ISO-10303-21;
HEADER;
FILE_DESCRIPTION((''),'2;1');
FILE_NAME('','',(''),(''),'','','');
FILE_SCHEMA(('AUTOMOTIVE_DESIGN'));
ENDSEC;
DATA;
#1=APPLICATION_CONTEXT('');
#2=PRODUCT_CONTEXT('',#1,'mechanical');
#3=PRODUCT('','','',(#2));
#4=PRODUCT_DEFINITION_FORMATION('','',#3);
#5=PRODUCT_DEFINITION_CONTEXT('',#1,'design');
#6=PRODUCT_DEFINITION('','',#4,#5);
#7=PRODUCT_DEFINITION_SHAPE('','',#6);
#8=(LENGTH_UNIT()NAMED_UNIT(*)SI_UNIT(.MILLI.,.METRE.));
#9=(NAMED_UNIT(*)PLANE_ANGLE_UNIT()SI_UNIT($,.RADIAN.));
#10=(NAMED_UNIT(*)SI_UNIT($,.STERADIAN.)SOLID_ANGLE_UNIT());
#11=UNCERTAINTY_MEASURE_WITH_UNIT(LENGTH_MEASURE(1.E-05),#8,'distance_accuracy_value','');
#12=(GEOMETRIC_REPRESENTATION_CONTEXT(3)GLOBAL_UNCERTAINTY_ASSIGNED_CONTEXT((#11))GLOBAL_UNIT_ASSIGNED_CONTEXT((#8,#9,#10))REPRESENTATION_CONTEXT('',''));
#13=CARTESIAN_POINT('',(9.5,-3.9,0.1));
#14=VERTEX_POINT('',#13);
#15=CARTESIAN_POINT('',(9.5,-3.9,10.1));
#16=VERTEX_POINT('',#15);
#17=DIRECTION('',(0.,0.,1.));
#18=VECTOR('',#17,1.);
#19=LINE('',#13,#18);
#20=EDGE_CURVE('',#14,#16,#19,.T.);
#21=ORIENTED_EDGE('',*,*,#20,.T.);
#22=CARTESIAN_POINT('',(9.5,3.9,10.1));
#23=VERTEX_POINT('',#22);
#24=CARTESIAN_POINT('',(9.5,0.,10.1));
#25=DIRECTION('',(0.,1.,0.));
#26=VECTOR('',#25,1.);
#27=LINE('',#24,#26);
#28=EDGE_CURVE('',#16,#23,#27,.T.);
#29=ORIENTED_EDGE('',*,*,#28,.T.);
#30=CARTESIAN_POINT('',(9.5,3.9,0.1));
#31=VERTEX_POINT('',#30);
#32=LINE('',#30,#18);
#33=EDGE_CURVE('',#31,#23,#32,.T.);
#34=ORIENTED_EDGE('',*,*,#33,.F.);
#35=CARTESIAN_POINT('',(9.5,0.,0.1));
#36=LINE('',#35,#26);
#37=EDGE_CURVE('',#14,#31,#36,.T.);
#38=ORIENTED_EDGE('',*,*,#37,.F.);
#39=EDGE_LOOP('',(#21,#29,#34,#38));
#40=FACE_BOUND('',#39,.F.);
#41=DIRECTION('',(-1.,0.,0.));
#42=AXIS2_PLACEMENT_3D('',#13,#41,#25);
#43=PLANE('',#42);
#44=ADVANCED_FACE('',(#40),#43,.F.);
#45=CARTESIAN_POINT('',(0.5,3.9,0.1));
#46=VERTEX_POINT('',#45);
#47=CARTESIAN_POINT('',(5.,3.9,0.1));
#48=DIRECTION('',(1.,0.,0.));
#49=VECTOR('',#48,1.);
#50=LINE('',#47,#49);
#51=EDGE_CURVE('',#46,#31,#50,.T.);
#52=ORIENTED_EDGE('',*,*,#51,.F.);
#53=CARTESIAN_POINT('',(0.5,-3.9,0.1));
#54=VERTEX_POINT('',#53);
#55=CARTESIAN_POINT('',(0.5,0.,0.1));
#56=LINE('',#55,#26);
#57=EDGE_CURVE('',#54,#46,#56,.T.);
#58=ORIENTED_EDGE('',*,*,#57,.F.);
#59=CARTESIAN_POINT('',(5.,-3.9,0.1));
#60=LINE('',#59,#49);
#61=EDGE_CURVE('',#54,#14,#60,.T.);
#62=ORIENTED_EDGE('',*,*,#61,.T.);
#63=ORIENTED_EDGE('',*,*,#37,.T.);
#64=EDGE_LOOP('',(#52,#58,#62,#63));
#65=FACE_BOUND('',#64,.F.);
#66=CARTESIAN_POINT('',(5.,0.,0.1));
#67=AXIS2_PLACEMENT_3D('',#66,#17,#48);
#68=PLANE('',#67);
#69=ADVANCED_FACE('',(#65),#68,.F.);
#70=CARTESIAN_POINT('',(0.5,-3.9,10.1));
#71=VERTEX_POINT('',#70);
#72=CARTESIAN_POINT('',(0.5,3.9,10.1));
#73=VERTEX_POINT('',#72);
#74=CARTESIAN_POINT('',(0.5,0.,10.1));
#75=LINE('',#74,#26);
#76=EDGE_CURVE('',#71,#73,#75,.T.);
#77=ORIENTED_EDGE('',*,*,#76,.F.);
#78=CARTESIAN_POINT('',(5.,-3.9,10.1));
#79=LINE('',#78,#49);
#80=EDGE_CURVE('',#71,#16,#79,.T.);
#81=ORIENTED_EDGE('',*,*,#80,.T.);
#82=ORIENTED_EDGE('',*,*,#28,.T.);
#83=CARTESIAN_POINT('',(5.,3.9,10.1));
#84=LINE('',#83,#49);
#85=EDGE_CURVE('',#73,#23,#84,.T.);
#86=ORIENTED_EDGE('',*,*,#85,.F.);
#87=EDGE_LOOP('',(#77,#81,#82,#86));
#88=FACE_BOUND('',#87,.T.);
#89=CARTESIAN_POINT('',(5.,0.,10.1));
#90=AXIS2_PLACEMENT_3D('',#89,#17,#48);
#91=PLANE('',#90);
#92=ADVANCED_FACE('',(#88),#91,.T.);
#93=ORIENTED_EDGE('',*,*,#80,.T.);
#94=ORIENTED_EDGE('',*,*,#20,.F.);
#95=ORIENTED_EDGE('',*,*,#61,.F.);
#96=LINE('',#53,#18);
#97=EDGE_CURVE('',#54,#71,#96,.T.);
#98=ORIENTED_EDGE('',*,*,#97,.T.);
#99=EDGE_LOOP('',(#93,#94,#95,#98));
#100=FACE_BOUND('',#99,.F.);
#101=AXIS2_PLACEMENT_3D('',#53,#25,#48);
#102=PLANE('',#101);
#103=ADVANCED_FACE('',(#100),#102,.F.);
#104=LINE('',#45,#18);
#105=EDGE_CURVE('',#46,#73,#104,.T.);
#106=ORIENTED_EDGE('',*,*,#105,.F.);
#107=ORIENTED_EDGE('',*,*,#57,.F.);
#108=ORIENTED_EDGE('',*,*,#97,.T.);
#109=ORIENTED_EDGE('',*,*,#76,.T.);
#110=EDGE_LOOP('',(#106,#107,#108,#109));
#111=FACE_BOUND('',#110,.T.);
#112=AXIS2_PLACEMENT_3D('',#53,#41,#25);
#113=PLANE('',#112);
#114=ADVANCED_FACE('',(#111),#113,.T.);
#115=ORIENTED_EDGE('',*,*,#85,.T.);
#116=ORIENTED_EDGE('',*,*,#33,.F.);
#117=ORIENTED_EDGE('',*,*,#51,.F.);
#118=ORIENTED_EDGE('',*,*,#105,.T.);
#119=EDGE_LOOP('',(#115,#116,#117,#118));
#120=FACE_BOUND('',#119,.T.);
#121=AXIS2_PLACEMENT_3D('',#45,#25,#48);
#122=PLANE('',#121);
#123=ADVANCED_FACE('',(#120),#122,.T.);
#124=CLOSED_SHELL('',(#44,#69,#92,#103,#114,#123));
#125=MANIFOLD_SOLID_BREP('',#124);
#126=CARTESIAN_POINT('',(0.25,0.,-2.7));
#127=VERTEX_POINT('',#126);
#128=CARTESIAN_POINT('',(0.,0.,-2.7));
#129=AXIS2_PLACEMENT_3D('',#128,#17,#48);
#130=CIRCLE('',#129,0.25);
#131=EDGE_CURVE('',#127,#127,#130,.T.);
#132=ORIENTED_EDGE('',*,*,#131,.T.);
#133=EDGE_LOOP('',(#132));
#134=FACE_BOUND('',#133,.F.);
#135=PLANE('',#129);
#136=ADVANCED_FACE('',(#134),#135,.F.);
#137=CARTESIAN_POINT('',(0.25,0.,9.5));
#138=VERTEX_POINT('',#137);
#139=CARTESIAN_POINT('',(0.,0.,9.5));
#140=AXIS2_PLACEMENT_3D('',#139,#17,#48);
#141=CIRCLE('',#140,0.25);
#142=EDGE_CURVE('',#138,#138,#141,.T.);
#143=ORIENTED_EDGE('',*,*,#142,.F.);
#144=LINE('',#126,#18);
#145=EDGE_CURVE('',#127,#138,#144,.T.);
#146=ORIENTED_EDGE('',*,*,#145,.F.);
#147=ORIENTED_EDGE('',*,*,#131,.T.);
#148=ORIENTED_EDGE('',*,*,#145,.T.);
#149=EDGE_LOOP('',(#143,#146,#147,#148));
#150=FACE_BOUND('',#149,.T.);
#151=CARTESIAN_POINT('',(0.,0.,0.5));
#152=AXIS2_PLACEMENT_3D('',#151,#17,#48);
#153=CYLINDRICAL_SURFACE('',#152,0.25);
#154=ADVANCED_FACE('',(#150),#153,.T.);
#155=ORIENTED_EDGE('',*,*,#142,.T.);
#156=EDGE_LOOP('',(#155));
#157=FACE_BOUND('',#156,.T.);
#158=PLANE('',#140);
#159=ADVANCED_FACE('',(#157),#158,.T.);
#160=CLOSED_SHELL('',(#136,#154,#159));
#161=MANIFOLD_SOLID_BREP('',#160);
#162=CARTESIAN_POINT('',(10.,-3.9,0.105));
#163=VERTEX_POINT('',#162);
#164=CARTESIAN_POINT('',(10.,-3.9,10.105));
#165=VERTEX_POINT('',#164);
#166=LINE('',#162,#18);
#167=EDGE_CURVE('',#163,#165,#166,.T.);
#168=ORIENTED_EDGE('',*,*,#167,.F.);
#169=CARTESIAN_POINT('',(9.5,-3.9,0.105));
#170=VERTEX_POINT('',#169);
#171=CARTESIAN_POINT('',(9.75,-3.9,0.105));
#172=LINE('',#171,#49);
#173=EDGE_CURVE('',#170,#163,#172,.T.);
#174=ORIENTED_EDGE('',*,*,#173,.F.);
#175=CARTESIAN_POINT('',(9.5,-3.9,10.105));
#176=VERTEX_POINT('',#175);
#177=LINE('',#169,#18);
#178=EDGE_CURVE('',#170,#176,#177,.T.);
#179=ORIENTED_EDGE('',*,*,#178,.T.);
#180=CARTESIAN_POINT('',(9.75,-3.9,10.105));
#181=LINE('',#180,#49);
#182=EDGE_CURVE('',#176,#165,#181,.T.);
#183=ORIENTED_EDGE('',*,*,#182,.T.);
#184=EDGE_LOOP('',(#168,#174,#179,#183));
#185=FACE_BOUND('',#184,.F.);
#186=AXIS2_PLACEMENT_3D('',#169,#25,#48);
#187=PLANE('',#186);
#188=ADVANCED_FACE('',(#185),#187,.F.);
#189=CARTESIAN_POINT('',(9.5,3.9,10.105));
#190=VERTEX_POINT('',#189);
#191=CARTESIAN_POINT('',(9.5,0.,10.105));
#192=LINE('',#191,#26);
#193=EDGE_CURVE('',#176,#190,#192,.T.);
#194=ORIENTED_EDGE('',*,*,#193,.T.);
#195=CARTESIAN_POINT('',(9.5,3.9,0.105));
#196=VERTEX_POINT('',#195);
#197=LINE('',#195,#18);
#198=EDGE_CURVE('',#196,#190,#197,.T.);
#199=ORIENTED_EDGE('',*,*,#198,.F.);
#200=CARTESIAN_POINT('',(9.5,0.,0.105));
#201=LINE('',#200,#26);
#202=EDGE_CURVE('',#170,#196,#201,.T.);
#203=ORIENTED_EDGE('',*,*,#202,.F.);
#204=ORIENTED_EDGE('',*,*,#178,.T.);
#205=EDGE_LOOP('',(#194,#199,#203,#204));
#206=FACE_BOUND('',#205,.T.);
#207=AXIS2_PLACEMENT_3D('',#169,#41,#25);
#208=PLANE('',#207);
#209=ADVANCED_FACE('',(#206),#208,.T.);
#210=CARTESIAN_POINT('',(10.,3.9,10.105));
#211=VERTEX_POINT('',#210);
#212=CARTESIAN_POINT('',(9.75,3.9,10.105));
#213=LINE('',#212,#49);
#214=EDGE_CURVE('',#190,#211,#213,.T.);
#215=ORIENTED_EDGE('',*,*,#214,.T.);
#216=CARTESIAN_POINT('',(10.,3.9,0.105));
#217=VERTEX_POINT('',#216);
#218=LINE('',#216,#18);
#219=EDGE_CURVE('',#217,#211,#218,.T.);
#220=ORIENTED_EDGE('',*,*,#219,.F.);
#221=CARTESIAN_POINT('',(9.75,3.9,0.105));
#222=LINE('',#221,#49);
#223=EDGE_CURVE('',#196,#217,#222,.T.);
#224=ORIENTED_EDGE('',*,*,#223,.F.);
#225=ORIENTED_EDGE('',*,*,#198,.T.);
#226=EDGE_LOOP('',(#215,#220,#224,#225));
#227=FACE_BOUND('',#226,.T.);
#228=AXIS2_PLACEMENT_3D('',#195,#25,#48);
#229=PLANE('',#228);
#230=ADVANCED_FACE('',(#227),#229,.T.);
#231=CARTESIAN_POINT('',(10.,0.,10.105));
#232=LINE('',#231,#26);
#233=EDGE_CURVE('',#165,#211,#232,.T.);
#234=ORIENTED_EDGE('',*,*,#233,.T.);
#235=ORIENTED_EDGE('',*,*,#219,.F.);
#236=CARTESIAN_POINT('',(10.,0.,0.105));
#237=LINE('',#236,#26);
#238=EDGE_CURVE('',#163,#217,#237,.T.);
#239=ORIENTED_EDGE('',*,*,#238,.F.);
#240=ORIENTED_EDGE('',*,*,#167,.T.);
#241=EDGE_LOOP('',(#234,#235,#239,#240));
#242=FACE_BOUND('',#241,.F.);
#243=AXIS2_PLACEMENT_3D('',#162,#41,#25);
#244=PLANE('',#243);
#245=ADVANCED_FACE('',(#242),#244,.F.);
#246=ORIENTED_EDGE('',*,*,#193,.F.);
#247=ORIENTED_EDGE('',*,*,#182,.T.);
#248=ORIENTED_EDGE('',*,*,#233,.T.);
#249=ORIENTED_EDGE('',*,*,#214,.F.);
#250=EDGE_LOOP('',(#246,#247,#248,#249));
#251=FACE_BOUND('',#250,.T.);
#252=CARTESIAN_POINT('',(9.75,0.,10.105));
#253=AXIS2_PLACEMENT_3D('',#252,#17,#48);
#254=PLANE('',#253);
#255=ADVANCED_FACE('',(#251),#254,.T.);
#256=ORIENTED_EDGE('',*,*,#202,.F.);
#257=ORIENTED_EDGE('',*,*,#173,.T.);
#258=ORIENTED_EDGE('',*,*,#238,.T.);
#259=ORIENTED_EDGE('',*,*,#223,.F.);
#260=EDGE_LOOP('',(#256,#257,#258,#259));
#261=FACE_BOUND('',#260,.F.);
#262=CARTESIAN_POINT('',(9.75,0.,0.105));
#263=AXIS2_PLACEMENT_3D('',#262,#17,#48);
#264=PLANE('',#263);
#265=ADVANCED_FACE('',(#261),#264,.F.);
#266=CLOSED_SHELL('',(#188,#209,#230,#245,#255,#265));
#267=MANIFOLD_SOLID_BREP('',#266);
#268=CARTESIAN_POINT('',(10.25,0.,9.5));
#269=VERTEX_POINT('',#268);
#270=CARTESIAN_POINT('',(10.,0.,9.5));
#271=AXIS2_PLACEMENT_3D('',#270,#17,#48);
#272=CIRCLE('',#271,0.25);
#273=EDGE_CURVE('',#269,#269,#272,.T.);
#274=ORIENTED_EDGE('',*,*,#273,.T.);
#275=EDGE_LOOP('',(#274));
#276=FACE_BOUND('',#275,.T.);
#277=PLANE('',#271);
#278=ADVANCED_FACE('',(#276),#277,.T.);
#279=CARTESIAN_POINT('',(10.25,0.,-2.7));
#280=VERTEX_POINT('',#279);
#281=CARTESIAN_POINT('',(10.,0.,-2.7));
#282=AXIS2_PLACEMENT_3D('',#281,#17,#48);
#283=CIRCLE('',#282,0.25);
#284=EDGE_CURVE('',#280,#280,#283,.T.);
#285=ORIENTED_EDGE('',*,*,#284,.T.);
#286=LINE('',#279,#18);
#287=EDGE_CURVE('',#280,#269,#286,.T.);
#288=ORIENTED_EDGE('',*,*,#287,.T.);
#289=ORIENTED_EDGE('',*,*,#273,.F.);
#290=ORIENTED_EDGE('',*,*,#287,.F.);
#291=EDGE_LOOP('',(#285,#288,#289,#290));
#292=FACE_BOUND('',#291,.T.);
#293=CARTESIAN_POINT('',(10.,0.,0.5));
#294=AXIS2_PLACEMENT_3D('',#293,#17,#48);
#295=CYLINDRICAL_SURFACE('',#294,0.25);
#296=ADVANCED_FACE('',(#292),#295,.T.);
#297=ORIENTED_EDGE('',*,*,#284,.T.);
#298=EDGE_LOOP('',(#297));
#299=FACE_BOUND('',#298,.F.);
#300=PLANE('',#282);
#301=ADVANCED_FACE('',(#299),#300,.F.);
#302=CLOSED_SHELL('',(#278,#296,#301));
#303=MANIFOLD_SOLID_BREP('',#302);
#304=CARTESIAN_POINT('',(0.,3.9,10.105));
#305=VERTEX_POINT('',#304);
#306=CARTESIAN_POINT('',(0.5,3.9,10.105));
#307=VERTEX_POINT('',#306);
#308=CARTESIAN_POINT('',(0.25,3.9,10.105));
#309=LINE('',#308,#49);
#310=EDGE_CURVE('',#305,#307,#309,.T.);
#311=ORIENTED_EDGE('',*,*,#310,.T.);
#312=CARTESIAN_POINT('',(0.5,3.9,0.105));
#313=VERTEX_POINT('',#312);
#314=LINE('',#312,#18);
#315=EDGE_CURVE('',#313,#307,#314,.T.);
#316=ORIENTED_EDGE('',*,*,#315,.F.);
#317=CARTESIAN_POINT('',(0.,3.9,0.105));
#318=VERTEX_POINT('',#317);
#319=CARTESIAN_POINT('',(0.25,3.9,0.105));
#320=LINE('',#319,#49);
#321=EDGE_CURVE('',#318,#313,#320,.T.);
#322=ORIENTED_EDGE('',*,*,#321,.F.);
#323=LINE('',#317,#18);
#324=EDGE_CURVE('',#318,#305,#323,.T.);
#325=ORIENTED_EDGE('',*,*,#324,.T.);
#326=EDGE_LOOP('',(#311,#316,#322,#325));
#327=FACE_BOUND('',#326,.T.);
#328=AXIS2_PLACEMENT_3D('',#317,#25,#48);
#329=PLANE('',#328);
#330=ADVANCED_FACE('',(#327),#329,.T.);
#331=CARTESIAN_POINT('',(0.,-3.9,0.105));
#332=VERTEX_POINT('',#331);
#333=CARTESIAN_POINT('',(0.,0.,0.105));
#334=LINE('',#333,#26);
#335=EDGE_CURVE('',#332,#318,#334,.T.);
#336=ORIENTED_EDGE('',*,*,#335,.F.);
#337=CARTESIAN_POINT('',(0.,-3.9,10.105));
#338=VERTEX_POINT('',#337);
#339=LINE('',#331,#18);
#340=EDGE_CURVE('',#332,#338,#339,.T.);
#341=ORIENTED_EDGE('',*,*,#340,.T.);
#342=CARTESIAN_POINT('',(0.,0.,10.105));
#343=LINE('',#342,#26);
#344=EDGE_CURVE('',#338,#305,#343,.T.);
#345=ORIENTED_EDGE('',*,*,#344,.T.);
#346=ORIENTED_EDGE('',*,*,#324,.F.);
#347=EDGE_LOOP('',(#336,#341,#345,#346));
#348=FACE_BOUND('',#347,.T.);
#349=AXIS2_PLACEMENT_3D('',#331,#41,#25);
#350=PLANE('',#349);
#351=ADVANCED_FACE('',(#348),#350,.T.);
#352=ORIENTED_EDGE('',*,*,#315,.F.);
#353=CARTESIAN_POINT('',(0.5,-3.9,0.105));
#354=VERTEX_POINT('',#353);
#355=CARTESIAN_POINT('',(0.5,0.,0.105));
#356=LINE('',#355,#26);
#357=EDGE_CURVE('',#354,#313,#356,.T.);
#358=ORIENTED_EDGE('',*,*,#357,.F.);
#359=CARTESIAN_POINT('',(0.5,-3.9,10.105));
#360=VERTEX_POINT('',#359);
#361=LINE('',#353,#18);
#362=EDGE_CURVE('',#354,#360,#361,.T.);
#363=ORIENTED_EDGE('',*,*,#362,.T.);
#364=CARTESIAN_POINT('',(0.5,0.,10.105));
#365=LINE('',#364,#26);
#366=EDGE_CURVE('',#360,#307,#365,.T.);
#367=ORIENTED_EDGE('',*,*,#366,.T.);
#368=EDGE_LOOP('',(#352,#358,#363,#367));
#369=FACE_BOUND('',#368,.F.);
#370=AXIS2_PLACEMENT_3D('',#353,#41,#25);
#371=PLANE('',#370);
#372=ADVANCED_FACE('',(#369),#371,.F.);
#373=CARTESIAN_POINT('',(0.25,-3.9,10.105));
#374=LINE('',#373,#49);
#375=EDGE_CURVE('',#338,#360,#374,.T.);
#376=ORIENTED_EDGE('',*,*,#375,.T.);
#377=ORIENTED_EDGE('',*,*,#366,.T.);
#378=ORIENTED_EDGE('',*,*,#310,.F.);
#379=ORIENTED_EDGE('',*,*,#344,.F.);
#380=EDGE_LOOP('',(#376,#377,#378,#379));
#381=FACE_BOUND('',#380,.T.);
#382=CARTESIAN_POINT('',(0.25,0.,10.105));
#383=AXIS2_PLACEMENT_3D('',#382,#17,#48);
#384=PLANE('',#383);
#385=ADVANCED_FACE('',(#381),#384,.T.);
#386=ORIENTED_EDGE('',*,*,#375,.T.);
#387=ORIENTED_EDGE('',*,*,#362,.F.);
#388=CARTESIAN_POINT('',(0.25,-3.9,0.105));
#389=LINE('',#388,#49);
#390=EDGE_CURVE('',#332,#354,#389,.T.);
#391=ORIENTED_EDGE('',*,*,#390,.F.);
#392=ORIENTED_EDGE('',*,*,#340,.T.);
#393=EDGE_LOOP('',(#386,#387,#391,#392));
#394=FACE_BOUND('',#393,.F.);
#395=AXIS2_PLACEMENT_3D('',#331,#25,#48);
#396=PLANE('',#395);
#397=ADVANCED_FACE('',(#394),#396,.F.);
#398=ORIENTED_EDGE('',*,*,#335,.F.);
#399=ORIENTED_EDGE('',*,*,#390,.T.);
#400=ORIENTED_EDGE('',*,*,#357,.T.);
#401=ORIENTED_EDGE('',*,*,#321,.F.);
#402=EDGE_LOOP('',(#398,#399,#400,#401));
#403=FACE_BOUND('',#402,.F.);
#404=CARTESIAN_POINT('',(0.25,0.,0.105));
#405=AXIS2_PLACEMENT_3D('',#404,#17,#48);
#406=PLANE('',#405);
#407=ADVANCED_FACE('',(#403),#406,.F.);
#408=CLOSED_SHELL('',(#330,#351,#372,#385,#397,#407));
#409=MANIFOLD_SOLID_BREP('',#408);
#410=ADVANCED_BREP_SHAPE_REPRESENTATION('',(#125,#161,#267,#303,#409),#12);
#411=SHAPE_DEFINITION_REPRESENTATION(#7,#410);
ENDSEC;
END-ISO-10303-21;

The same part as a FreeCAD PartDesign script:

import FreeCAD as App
import Part
import Sketcher
from FreeCAD import Vector
Q = App.Units.Quantity

doc = App.newDocument("Part")
params = doc.addObject("Spreadsheet::Sheet", "Params")
for row, (alias, value) in enumerate([
    ("sketch1_width", "9 mm"),
    ("sketch1_height", "7.8 mm"),
    ("pad1_length", "10 mm"),
    ("sketch2_diameter", "0.5 mm"),
    ("pad2_length", "9 mm"),
    ("pad2_length2", "3.2 mm"),
    ("sketch3_width", "0.5 mm"),
    ("sketch3_height", "7.8 mm"),
    ("pad3_length", "10 mm"),
], start=1):
    params.set(f"A{row}", alias)
    params.set(f"B{row}", "=" + value)
    params.setAlias(f"B{row}", alias)

body = doc.addObject("PartDesign::Body", "Body")

# Sketch on XY plane
sketch1 = body.newObject("Sketcher::SketchObject", "Sketch")
sketch1.AttachmentSupport = (doc.getObject("XY_Plane"), [""])
sketch1.MapMode = "FlatFace"
sketch1.AttachmentOffset = App.Placement(Vector(0, 0, 0.1), App.Rotation())
sketch1.addGeometry([
    Part.LineSegment(Vector(0, 4, 0), Vector(0, -4, 0)),
    Part.LineSegment(Vector(0, -4, 0), Vector(10, -4, 0)),
    Part.LineSegment(Vector(10, -4, 0), Vector(10, 4, 0)),
    Part.LineSegment(Vector(10, 4, 0), Vector(0, 4, 0)),
], False)
sketch1.addConstraint([
    Sketcher.Constraint("Coincident", 0, 2, 1, 1),
    Sketcher.Constraint("Coincident", 1, 2, 2, 1),
    Sketcher.Constraint("Coincident", 2, 2, 3, 1),
    Sketcher.Constraint("Coincident", 3, 2, 0, 1),
    Sketcher.Constraint("Vertical", 0),
    Sketcher.Constraint("Horizontal", 1),
    Sketcher.Constraint("Vertical", 2),
    Sketcher.Constraint("Horizontal", 3),
    Sketcher.Constraint("DistanceX", 1, 1, 1, 2, Q("9 mm")),
    Sketcher.Constraint("DistanceY", 0, 2, 0, 1, Q("7.8 mm")),
    Sketcher.Constraint("DistanceX", -1, 1, 0, 2, Q("0.5 mm")),
    Sketcher.Constraint("DistanceY", 0, 2, -1, 1, Q("3.9 mm")),
])
sketch1.setExpression("Constraints[8]", "Params.sketch1_width")
sketch1.setExpression("Constraints[9]", "Params.sketch1_height")
pad1 = body.newObject("PartDesign::Pad", "Pad")
pad1.Profile = sketch1
pad1.setExpression("Length", "Params.pad1_length")
body2 = doc.addObject("PartDesign::Body", "Body001")
body2.AllowCompound = True

# Sketch on XY plane
sketch2 = body2.newObject("Sketcher::SketchObject", "Sketch001")
sketch2.AttachmentSupport = (doc.getObject("XY_Plane001"), [""])
sketch2.MapMode = "FlatFace"
sketch2.AttachmentOffset = App.Placement(Vector(0, 0, 0.5), App.Rotation())
sketch2.addGeometry([
    Part.Circle(Vector(0, 0, 0), Vector(0, 0, 1), 0.25),
    Part.Circle(Vector(10, 0, 0), Vector(0, 0, 1), 0.25),
], False)
sketch2.addConstraint([
    Sketcher.Constraint("Coincident", 0, 3, -1, 1),
    Sketcher.Constraint("Equal", 0, 1),
    Sketcher.Constraint("PointOnObject", 1, 3, -1),
    Sketcher.Constraint("Diameter", 0, Q("0.5 mm")),
    Sketcher.Constraint("DistanceX", -1, 1, 1, 3, Q("10 mm")),
])
sketch2.setExpression("Constraints[3]", "Params.sketch2_diameter")
pad2 = body2.newObject("PartDesign::Pad", "Pad001")
pad2.Profile = sketch2
pad2.Type = "TwoLengths"
pad2.setExpression("Length", "Params.pad2_length")
pad2.setExpression("Length2", "Params.pad2_length2")
body3 = doc.addObject("PartDesign::Body", "Body002")
body3.AllowCompound = True

# Sketch on XY plane
sketch3 = body3.newObject("Sketcher::SketchObject", "Sketch002")
sketch3.AttachmentSupport = (doc.getObject("XY_Plane002"), [""])
sketch3.MapMode = "FlatFace"
sketch3.AttachmentOffset = App.Placement(Vector(0, 0, 0.105), App.Rotation())
sketch3.addGeometry([
    Part.LineSegment(Vector(0, 3.9, 0), Vector(0, -3.9, 0)),  # 0
    Part.LineSegment(Vector(0, -3.9, 0), Vector(0.5, -3.9, 0)),  # 1
    Part.LineSegment(Vector(0.5, -3.9, 0), Vector(0.5, 3.9, 0)),  # 2
    Part.LineSegment(Vector(0.5, 3.9, 0), Vector(0, 3.9, 0)),  # 3
    Part.LineSegment(Vector(9.5, 3.9, 0), Vector(9.5, -3.9, 0)),  # 4
    Part.LineSegment(Vector(9.5, -3.9, 0), Vector(10, -3.9, 0)),  # 5
    Part.LineSegment(Vector(10, -3.9, 0), Vector(10, 3.9, 0)),  # 6
    Part.LineSegment(Vector(10, 3.9, 0), Vector(9.5, 3.9, 0)),  # 7
], False)
sketch3.addConstraint([
    Sketcher.Constraint("Coincident", 0, 2, 1, 1),
    Sketcher.Constraint("Coincident", 1, 2, 2, 1),
    Sketcher.Constraint("Coincident", 2, 2, 3, 1),
    Sketcher.Constraint("Coincident", 3, 2, 0, 1),
    Sketcher.Constraint("Coincident", 4, 2, 5, 1),
    Sketcher.Constraint("Coincident", 5, 2, 6, 1),
    Sketcher.Constraint("Coincident", 6, 2, 7, 1),
    Sketcher.Constraint("Coincident", 7, 2, 4, 1),
    Sketcher.Constraint("Vertical", 0),
    Sketcher.Constraint("Horizontal", 1),
    Sketcher.Constraint("Vertical", 2),
    Sketcher.Constraint("Horizontal", 3),
    Sketcher.Constraint("Vertical", 4),
    Sketcher.Constraint("Horizontal", 5),
    Sketcher.Constraint("Vertical", 6),
    Sketcher.Constraint("Horizontal", 7),
    Sketcher.Constraint("Symmetric", 0, 2, 3, 2, -1, 1),
    Sketcher.Constraint("Horizontal", 1, 2, 4, 2),
    Sketcher.Constraint("Horizontal", 3, 2, 6, 2),
    Sketcher.Constraint("Equal", 3, 5),
    Sketcher.Constraint("DistanceX", 1, 1, 1, 2, Q("0.5 mm")),
    Sketcher.Constraint("DistanceY", 0, 2, 0, 1, Q("7.8 mm")),
    Sketcher.Constraint("DistanceX", -1, 1, 5, 2, Q("10 mm")),
])
sketch3.setExpression("Constraints[20]", "Params.sketch3_width")
sketch3.setExpression("Constraints[21]", "Params.sketch3_height")
pad3 = body3.newObject("PartDesign::Pad", "Pad002")
pad3.Profile = sketch3
pad3.setExpression("Length", "Params.pad3_length")

doc.recompute()
